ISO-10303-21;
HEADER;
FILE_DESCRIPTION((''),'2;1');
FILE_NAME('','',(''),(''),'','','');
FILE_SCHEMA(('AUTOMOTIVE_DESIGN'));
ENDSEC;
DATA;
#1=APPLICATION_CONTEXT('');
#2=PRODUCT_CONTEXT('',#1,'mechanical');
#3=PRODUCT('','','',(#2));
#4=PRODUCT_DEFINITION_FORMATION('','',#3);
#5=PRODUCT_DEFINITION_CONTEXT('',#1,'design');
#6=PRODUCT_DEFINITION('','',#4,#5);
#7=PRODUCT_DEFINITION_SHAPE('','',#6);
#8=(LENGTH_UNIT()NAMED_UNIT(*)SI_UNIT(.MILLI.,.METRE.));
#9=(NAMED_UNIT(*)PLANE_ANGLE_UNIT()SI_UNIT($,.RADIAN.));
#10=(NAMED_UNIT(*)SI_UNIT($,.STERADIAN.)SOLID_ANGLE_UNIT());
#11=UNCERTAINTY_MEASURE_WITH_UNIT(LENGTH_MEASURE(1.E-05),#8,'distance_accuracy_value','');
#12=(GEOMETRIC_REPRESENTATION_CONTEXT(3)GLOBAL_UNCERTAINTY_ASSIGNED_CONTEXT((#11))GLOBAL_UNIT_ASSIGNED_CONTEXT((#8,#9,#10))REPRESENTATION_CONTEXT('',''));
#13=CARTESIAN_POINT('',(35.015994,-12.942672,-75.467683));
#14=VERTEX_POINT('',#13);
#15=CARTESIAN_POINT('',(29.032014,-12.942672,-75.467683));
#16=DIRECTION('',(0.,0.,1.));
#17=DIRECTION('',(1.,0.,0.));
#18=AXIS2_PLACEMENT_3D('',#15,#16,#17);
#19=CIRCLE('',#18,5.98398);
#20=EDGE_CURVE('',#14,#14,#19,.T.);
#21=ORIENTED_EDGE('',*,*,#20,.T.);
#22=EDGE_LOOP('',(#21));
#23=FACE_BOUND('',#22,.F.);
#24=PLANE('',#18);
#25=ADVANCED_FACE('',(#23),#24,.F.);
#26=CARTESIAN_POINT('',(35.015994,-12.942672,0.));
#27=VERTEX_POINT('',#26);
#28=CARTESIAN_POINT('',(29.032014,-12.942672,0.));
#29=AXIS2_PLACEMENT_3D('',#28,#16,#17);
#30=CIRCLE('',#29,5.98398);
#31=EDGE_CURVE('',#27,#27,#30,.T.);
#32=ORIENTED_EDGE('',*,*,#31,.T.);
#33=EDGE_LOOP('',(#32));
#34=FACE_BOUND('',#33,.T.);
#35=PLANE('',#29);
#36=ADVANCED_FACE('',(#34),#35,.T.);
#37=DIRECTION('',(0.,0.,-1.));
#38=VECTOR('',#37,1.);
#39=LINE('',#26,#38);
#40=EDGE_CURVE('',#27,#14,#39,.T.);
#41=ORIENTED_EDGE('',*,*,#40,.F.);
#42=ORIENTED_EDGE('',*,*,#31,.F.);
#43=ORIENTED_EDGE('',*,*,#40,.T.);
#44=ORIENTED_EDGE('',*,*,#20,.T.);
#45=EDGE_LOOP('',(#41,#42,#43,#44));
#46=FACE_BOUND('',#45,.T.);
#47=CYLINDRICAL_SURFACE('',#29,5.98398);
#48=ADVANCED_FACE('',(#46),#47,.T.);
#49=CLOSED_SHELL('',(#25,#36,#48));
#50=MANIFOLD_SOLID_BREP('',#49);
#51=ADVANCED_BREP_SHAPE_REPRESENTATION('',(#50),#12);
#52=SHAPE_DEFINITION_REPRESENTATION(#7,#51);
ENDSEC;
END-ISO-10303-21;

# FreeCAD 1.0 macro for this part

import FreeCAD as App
import Part
import Sketcher

V = App.Vector

doc = App.newDocument("Part")
body = doc.addObject("PartDesign::Body", "Body")

# Sketch on XY plane
sketch1 = doc.addObject("Sketcher::SketchObject", "Sketch")
body.addObject(sketch1)
sketch1.AttachmentSupport = (doc.XY_Plane, [""])
sketch1.MapMode = "FlatFace"
sketch1.addGeometry(Part.Circle(V(29, -13, 0), V(0, 0, 1), 6), False)
sketch1.addConstraint([
    Sketcher.Constraint("Diameter", 0, 11.967959),
    Sketcher.Constraint("DistanceY", 0, 3, -1, 1, 12.942672),
    Sketcher.Constraint("DistanceX", -1, 1, 0, 3, 29.032014),
])
pad1 = doc.addObject("PartDesign::Pad", "Pad")
body.addObject(pad1)
pad1.Profile = sketch1
pad1.Length = 75.467683
pad1.Reversed = True

doc.recompute()
